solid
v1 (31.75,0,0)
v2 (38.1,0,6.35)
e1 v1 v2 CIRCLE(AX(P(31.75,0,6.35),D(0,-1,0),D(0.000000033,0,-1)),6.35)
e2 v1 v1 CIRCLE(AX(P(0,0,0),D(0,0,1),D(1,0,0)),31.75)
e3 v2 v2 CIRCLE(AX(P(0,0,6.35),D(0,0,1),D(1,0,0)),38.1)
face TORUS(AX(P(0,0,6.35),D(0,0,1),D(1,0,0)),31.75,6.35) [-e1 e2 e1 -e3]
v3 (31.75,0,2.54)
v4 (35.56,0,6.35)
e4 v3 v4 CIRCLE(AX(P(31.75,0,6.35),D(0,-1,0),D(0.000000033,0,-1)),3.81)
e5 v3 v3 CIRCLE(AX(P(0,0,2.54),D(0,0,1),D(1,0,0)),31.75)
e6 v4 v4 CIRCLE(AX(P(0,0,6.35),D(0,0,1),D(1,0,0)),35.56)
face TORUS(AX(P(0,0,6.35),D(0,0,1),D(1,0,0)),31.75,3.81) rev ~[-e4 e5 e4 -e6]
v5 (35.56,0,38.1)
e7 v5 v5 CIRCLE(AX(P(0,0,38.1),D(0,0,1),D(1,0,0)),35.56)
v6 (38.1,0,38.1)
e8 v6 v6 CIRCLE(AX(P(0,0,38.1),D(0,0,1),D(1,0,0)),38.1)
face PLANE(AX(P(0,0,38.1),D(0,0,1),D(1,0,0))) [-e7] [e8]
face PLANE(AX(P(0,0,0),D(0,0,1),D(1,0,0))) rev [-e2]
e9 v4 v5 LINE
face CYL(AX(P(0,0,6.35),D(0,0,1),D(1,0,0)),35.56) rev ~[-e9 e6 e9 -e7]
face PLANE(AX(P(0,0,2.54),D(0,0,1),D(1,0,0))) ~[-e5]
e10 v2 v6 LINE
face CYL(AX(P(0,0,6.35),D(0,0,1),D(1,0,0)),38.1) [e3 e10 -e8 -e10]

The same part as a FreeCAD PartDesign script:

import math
import FreeCAD as App
import Part
import Sketcher

V = App.Vector
Q = App.Units.Quantity


def faces_at(feature, points):
    """Names of the faces that lie closest to the given points."""
    faces = feature.Shape.Faces
    near = lambda p: min(range(len(faces)), key=lambda i: faces[i].distToShape(Part.Vertex(*p))[0])
    return sorted({f"Face{near(p) + 1}" for p in points})

doc = App.newDocument("Part")
body = doc.addObject("PartDesign::Body", "Body")

sketch1 = doc.addObject("Sketcher::SketchObject", "Sketch")
body.addObject(sketch1)
sketch1.AttachmentSupport = (doc.XZ_Plane, [""])
sketch1.MapMode = "FlatFace"
sketch1.addGeometry(Part.LineSegment(V(0, 38, 0), V(0, 0, 0)), False)
sketch1.addGeometry(Part.LineSegment(V(0, 0, 0), V(32, 0, 0)), False)
sketch1.addGeometry(Part.ArcOfCircle(Part.Circle(V(32, 6, 0), V(0, 0, 1), 6), math.radians(-90), math.radians(0)), False)
sketch1.addGeometry(Part.LineSegment(V(38, 6, 0), V(38, 38, 0)), False)
sketch1.addGeometry(Part.LineSegment(V(38, 38, 0), V(0, 38, 0)), False)
sketch1.addConstraint(Sketcher.Constraint("Coincident", 0, 2, 1, 1))
sketch1.addConstraint(Sketcher.Constraint("Tangent", 1, 2, 2, 1))
sketch1.addConstraint(Sketcher.Constraint("Tangent", 2, 2, 3, 1))
sketch1.addConstraint(Sketcher.Constraint("Coincident", 3, 2, 4, 1))
sketch1.addConstraint(Sketcher.Constraint("Coincident", 4, 2, 0, 1))
sketch1.addConstraint(Sketcher.Constraint("Vertical", 0))
sketch1.addConstraint(Sketcher.Constraint("Horizontal", 1))
sketch1.addConstraint(Sketcher.Constraint("Vertical", 3))
sketch1.addConstraint(Sketcher.Constraint("Horizontal", 4))
sketch1.addConstraint(Sketcher.Constraint("Coincident", 0, 2, -1, 1))
sketch1.addConstraint(Sketcher.Constraint("Equal", 4, 0))
sketch1.addConstraint(Sketcher.Constraint("Radius", 2, Q("0.25 in")))
sketch1.addConstraint(Sketcher.Constraint("DistanceX", 4, 2, 4, 1, Q("1.5 in")))
revolution = doc.addObject("PartDesign::Revolution", "Revolution")
body.addObject(revolution)
revolution.Profile = sketch1
revolution.ReferenceAxis = (sketch1, ["V_Axis"])
revolution.Angle = 360
doc.recompute()

thickness = doc.addObject("PartDesign::Thickness", "Thickness")
body.addObject(thickness)
thickness.Base = (revolution, faces_at(revolution, [(0, 0, 38.1)]))
thickness.Value = Q("0.1 in")
thickness.Reversed = True
thickness.Join = "Arc"

doc.recompute()
